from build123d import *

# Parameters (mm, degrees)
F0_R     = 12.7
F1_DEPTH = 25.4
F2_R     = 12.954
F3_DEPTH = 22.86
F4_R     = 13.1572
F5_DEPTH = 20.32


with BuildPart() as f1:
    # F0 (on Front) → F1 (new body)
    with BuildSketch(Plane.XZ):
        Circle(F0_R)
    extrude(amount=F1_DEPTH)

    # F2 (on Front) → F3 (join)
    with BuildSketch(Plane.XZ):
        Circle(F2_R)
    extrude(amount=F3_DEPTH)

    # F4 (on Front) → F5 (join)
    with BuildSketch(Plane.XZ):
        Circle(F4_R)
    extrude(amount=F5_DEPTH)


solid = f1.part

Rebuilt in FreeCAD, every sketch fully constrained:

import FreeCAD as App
import Part
import Sketcher

V = App.Vector
Q = App.Units.Quantity

doc = App.newDocument("Part")
body = doc.addObject("PartDesign::Body", "Body")

# Sketch on XZ plane
sketch1 = body.newObject("Sketcher::SketchObject", "Sketch")
sketch1.AttachmentSupport = (doc.getObject("XZ_Plane"), [""])
sketch1.MapMode = "FlatFace"
sketch1.addGeometry(Part.Circle(V(0, 0, 0), V(0, 0, 1), 13), False)
sketch1.addConstraint(Sketcher.Constraint("Coincident", 0, 3, -1, 1))
sketch1.addConstraint(Sketcher.Constraint("Diameter", 0, Q("1 in")))
pad1 = body.newObject("PartDesign::Pad", "Pad")
pad1.Profile = sketch1
pad1.Length = Q("1 in")

# Sketch on XZ plane
sketch2 = body.newObject("Sketcher::SketchObject", "Sketch001")
sketch2.AttachmentSupport = (doc.getObject("XZ_Plane"), [""])
sketch2.MapMode = "FlatFace"
sketch2.addGeometry(Part.Circle(V(0, 0, 0), V(0, 0, 1), 13), False)
sketch2.addConstraint(Sketcher.Constraint("Coincident", 0, 3, -1, 1))
sketch2.addConstraint(Sketcher.Constraint("Diameter", 0, Q("1.02 in")))
pad2 = body.newObject("PartDesign::Pad", "Pad001")
pad2.Profile = sketch2
pad2.Length = Q("0.9 in")

# Sketch on XZ plane
sketch3 = body.newObject("Sketcher::SketchObject", "Sketch002")
sketch3.AttachmentSupport = (doc.getObject("XZ_Plane"), [""])
sketch3.MapMode = "FlatFace"
sketch3.addGeometry(Part.Circle(V(0, 0, 0), V(0, 0, 1), 13), False)
sketch3.addConstraint(Sketcher.Constraint("Coincident", 0, 3, -1, 1))
sketch3.addConstraint(Sketcher.Constraint("Diameter", 0, Q("1.036 in")))
pad3 = body.newObject("PartDesign::Pad", "Pad002")
pad3.Profile = sketch3
pad3.Length = Q("0.8 in")

doc.recompute()
